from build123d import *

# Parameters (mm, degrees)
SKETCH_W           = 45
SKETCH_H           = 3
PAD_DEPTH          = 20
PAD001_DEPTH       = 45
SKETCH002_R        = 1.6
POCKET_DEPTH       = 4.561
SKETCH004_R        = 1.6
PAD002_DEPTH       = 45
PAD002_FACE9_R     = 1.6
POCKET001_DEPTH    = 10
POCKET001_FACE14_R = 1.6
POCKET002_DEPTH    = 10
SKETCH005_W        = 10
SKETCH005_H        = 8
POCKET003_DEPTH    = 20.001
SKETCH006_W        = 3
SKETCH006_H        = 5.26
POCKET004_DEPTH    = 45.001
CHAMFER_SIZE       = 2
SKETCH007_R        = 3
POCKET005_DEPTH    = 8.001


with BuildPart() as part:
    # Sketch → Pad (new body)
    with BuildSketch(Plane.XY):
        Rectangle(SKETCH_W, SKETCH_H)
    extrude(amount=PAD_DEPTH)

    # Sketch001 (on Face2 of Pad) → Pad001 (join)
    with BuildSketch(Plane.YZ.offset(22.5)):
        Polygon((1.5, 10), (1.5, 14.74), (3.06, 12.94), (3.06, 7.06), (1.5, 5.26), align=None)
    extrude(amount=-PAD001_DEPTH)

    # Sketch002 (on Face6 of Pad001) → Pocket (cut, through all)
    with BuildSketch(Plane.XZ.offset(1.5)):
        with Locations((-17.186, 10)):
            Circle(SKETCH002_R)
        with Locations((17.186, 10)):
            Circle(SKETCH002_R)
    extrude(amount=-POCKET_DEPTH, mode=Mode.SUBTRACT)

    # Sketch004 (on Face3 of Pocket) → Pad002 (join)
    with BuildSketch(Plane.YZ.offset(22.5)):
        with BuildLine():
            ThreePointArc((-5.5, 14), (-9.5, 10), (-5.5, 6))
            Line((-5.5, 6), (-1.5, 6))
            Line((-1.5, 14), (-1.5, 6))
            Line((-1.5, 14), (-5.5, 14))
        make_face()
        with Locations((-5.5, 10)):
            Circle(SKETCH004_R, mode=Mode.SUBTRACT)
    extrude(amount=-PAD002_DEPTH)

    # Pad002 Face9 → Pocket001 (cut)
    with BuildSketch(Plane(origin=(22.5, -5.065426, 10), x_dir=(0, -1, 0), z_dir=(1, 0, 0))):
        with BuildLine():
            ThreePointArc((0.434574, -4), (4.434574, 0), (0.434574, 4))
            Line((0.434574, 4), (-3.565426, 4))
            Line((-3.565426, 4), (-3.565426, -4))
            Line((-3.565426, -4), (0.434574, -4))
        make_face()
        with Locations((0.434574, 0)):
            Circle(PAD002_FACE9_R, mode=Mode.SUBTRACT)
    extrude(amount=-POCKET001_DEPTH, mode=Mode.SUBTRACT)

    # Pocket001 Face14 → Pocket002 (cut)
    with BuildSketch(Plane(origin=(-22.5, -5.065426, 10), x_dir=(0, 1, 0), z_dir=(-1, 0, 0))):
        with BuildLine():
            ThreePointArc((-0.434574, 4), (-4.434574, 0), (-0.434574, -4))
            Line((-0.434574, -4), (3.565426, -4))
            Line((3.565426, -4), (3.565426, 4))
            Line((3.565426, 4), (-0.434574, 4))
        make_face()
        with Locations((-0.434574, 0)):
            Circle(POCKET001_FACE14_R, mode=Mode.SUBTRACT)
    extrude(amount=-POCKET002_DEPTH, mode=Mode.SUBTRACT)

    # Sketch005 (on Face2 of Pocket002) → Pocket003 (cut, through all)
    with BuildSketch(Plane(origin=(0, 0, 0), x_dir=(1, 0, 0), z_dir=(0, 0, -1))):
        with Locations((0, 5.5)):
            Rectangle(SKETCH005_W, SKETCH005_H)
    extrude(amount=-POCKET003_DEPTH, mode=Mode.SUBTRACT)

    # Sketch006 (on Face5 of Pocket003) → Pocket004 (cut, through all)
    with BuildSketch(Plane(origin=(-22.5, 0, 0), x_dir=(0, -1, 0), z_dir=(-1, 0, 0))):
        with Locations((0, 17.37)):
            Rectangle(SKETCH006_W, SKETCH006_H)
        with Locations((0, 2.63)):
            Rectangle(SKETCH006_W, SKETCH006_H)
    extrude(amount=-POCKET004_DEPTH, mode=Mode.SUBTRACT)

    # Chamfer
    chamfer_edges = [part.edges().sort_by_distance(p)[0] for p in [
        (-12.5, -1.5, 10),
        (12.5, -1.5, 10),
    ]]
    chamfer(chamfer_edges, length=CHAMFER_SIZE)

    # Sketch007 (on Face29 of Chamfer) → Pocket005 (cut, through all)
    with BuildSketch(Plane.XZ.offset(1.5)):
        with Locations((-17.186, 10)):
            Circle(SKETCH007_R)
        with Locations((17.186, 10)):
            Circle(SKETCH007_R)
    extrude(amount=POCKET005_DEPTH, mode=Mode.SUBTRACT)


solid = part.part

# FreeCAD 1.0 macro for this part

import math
import FreeCAD as App
import Part
import Sketcher
Q = App.Units.Quantity


def edges_at(feature, points):
    """Names of the edges that pass closest to the given points."""
    edges = feature.Shape.Edges
    near = lambda p: min(range(len(edges)), key=lambda i: edges[i].distToShape(Part.Vertex(*p))[0])
    return sorted({f"Edge{near(p) + 1}" for p in points})

doc = App.newDocument("Part")
params = doc.addObject("Spreadsheet::Sheet", "Params")
for row, (alias, value) in enumerate([
    ("sketch1_width", "45 mm"),
    ("sketch1_height", "3 mm"),
    ("pad1_length", "20 mm"),
    ("sketch2_height", "9.48 mm"),
    ("sketch2_height2", "5.88 mm"),
    ("pad2_length", "45 mm"),
    ("sketch3_diameter", "3.2 mm"),
    ("sketch4_radius", "4 mm"),
    ("sketch4_diameter", "3.2 mm"),
    ("sketch4_width", "4 mm"),
    ("pad3_length", "45 mm"),
    ("sketch5_radius", "4 mm"),
    ("sketch5_diameter", "3.2 mm"),
    ("sketch5_width", "4 mm"),
    ("pocket2_length", "10 mm"),
    ("sketch6_radius", "4 mm"),
    ("sketch6_diameter", "3.2 mm"),
    ("sketch6_width", "4 mm"),
    ("pocket3_length", "10 mm"),
    ("sketch7_width", "10 mm"),
    ("sketch7_height", "8 mm"),
    ("sketch8_width", "3 mm"),
    ("sketch8_height", "5.26 mm"),
    ("chamfer_size", "2 mm"),
    ("sketch9_diameter", "6 mm"),
], start=1):
    params.set(f"A{row}", alias)
    params.set(f"B{row}", "=" + value)
    params.setAlias(f"B{row}", alias)

body = doc.addObject("PartDesign::Body", "Body")

# Sketch on XY plane
sketch1 = doc.addObject("Sketcher::SketchObject", "Sketch")
body.addObject(sketch1)
sketch1.AttachmentSupport = (doc.XY_Plane, [""])
sketch1.MapMode = "FlatFace"
sketch1.addGeometry(Part.LineSegment(App.Vector(-22.5, 1.5, 0), App.Vector(-22.5, -1.5, 0)), False)
sketch1.addGeometry(Part.LineSegment(App.Vector(-22.5, -1.5, 0), App.Vector(22.5, -1.5, 0)), False)
sketch1.addGeometry(Part.LineSegment(App.Vector(22.5, -1.5, 0), App.Vector(22.5, 1.5, 0)), False)
sketch1.addGeometry(Part.LineSegment(App.Vector(22.5, 1.5, 0), App.Vector(-22.5, 1.5, 0)), False)
sketch1.addConstraint(Sketcher.Constraint("Coincident", 0, 2, 1, 1))
sketch1.addConstraint(Sketcher.Constraint("Coincident", 1, 2, 2, 1))
sketch1.addConstraint(Sketcher.Constraint("Coincident", 2, 2, 3, 1))
sketch1.addConstraint(Sketcher.Constraint("Coincident", 3, 2, 0, 1))
sketch1.addConstraint(Sketcher.Constraint("Vertical", 0))
sketch1.addConstraint(Sketcher.Constraint("Horizontal", 1))
sketch1.addConstraint(Sketcher.Constraint("Vertical", 2))
sketch1.addConstraint(Sketcher.Constraint("Horizontal", 3))
sketch1.addConstraint(Sketcher.Constraint("Symmetric", 0, 2, 2, 2, -1, 1))
sketch1.addConstraint(Sketcher.Constraint("DistanceX", 1, 1, 1, 2, Q("45 mm")))
sketch1.addConstraint(Sketcher.Constraint("DistanceY", 0, 2, 0, 1, Q("3 mm")))
sketch1.setExpression("Constraints[9]", "Params.sketch1_width")
sketch1.setExpression("Constraints[10]", "Params.sketch1_height")
pad1 = doc.addObject("PartDesign::Pad", "Pad")
body.addObject(pad1)
pad1.Profile = sketch1
pad1.setExpression("Length", "Params.pad1_length")

# Sketch on YZ plane
sketch2 = doc.addObject("Sketcher::SketchObject", "Sketch001")
body.addObject(sketch2)
sketch2.AttachmentSupport = (doc.YZ_Plane, [""])
sketch2.MapMode = "FlatFace"
sketch2.AttachmentOffset = App.Placement(App.Vector(0, 0, 22.5), App.Rotation())
sketch2.addGeometry(Part.LineSegment(App.Vector(1.5, 14.7, 0), App.Vector(1.5, 5.3, 0)), False)
sketch2.addGeometry(Part.LineSegment(App.Vector(1.5, 5.3, 0), App.Vector(3.1, 7.1, 0)), False)
sketch2.addGeometry(Part.LineSegment(App.Vector(3.1, 7.1, 0), App.Vector(3.1, 12.9, 0)), False)
sketch2.addGeometry(Part.LineSegment(App.Vector(3.1, 12.9, 0), App.Vector(1.5, 14.7, 0)), False)
sketch2.addConstraint(Sketcher.Constraint("Coincident", 0, 2, 1, 1))
sketch2.addConstraint(Sketcher.Constraint("Coincident", 1, 2, 2, 1))
sketch2.addConstraint(Sketcher.Constraint("Coincident", 2, 2, 3, 1))
sketch2.addConstraint(Sketcher.Constraint("Coincident", 3, 2, 0, 1))
sketch2.addConstraint(Sketcher.Constraint("Vertical", 0))
sketch2.addConstraint(Sketcher.Constraint("Vertical", 2))
sketch2.addConstraint(Sketcher.Constraint("Equal", 1, 3))
sketch2.addConstraint(Sketcher.Constraint("DistanceY", 0, 2, 0, 1, Q("9.48 mm")))
sketch2.addConstraint(Sketcher.Constraint("DistanceY", 2, 1, 2, 2, Q("5.88 mm")))
sketch2.addConstraint(Sketcher.Constraint("DistanceX", -1, 1, 0, 2, Q("1.5 mm")))
sketch2.addConstraint(Sketcher.Constraint("DistanceY", -1, 1, 0, 2, Q("5.26 mm")))
sketch2.addConstraint(Sketcher.Constraint("DistanceX", -1, 1, 1, 2, Q("3.06 mm")))
sketch2.setExpression("Constraints[7]", "Params.sketch2_height")
sketch2.setExpression("Constraints[8]", "Params.sketch2_height2")
pad2 = doc.addObject("PartDesign::Pad", "Pad001")
body.addObject(pad2)
pad2.Profile = sketch2
pad2.setExpression("Length", "Params.pad2_length")
pad2.Reversed = True

# Sketch on XZ plane
sketch3 = doc.addObject("Sketcher::SketchObject", "Sketch002")
body.addObject(sketch3)
sketch3.AttachmentSupport = (doc.XZ_Plane, [""])
sketch3.MapMode = "FlatFace"
sketch3.AttachmentOffset = App.Placement(App.Vector(0, 0, 1.5), App.Rotation())
sketch3.addGeometry(Part.Circle(App.Vector(-17.2, 10, 0), App.Vector(0, 0, 1), 1.6), False)
sketch3.addGeometry(Part.Circle(App.Vector(17.2, 10, 0), App.Vector(0, 0, 1), 1.6), False)
sketch3.addConstraint(Sketcher.Constraint("Equal", 0, 1))
sketch3.addConstraint(Sketcher.Constraint("Symmetric", 0, 3, 1, 3, -2))
sketch3.addConstraint(Sketcher.Constraint("Diameter", 0, Q("3.2 mm")))
sketch3.addConstraint(Sketcher.Constraint("DistanceY", -1, 1, 0, 3, Q("10 mm")))
sketch3.addConstraint(Sketcher.Constraint("DistanceX", 0, 3, -1, 1, Q("17.186 mm")))
sketch3.setExpression("Constraints[2]", "Params.sketch3_diameter")
pocket1 = doc.addObject("PartDesign::Pocket", "Pocket")
body.addObject(pocket1)
pocket1.Profile = sketch3
pocket1.Type = "ThroughAll"

# Sketch on YZ plane
sketch4 = doc.addObject("Sketcher::SketchObject", "Sketch003")
body.addObject(sketch4)
sketch4.AttachmentSupport = (doc.YZ_Plane, [""])
sketch4.MapMode = "FlatFace"
sketch4.AttachmentOffset = App.Placement(App.Vector(0, 0, 22.5), App.Rotation())
sketch4.addGeometry(Part.ArcOfCircle(Part.Circle(App.Vector(-5.5, 10, 0), App.Vector(0, 0, 1), 4), math.radians(90), math.radians(270)), False)
sketch4.addGeometry(Part.LineSegment(App.Vector(-5.5, 6, 0), App.Vector(-1.5, 6, 0)), False)
sketch4.addGeometry(Part.LineSegment(App.Vector(-1.5, 6, 0), App.Vector(-1.5, 14, 0)), False)
sketch4.addGeometry(Part.LineSegment(App.Vector(-1.5, 14, 0), App.Vector(-5.5, 14, 0)), False)
sketch4.addGeometry(Part.Circle(App.Vector(-5.5, 10, 0), App.Vector(0, 0, 1), 1.6), False)
sketch4.addConstraint(Sketcher.Constraint("Tangent", 0, 2, 1, 1))
sketch4.addConstraint(Sketcher.Constraint("Coincident", 1, 2, 2, 1))
sketch4.addConstraint(Sketcher.Constraint("Coincident", 2, 2, 3, 1))
sketch4.addConstraint(Sketcher.Constraint("Tangent", 3, 2, 0, 1))
sketch4.addConstraint(Sketcher.Constraint("Horizontal", 1))
sketch4.addConstraint(Sketcher.Constraint("Vertical", 2))
sketch4.addConstraint(Sketcher.Constraint("Horizontal", 3))
sketch4.addConstraint(Sketcher.Constraint("Coincident", 4, 3, 0, 3))
sketch4.addConstraint(Sketcher.Constraint("Radius", 0, Q("4 mm")))
sketch4.addConstraint(Sketcher.Constraint("Diameter", 4, Q("3.2 mm")))
sketch4.addConstraint(Sketcher.Constraint("DistanceX", 1, 1, 1, 2, Q("4 mm")))
sketch4.addConstraint(Sketcher.Constraint("DistanceY", -1, 1, 0, 3, Q("10 mm")))
sketch4.addConstraint(Sketcher.Constraint("DistanceX", 0, 3, -1, 1, Q("5.5 mm")))
sketch4.setExpression("Constraints[8]", "Params.sketch4_radius")
sketch4.setExpression("Constraints[9]", "Params.sketch4_diameter")
sketch4.setExpression("Constraints[10]", "Params.sketch4_width")
pad3 = doc.addObject("PartDesign::Pad", "Pad002")
body.addObject(pad3)
pad3.Profile = sketch4
pad3.setExpression("Length", "Params.pad3_length")
pad3.Reversed = True

# Sketch on YZ plane
sketch5 = doc.addObject("Sketcher::SketchObject", "Sketch004")
body.addObject(sketch5)
sketch5.AttachmentSupport = (doc.YZ_Plane, [""])
sketch5.MapMode = "FlatFace"
sketch5.AttachmentOffset = App.Placement(App.Vector(0, 0, 22.5), App.Rotation())
sketch5.addGeometry(Part.ArcOfCircle(Part.Circle(App.Vector(-5.5, 10, 0), App.Vector(0, 0, 1), 4), math.radians(90), math.radians(270)), False)
sketch5.addGeometry(Part.LineSegment(App.Vector(-5.5, 6, 0), App.Vector(-1.5, 6, 0)), False)
sketch5.addGeometry(Part.LineSegment(App.Vector(-1.5, 6, 0), App.Vector(-1.5, 14, 0)), False)
sketch5.addGeometry(Part.LineSegment(App.Vector(-1.5, 14, 0), App.Vector(-5.5, 14, 0)), False)
sketch5.addGeometry(Part.Circle(App.Vector(-5.5, 10, 0), App.Vector(0, 0, 1), 1.6), False)
sketch5.addConstraint(Sketcher.Constraint("Tangent", 0, 2, 1, 1))
sketch5.addConstraint(Sketcher.Constraint("Coincident", 1, 2, 2, 1))
sketch5.addConstraint(Sketcher.Constraint("Coincident", 2, 2, 3, 1))
sketch5.addConstraint(Sketcher.Constraint("Tangent", 3, 2, 0, 1))
sketch5.addConstraint(Sketcher.Constraint("Horizontal", 1))
sketch5.addConstraint(Sketcher.Constraint("Vertical", 2))
sketch5.addConstraint(Sketcher.Constraint("Horizontal", 3))
sketch5.addConstraint(Sketcher.Constraint("Coincident", 4, 3, 0, 3))
sketch5.addConstraint(Sketcher.Constraint("Radius", 0, Q("4 mm")))
sketch5.addConstraint(Sketcher.Constraint("Diameter", 4, Q("3.2 mm")))
sketch5.addConstraint(Sketcher.Constraint("DistanceX", 1, 1, 1, 2, Q("4 mm")))
sketch5.addConstraint(Sketcher.Constraint("DistanceY", -1, 1, 0, 3, Q("10 mm")))
sketch5.addConstraint(Sketcher.Constraint("DistanceX", 0, 3, -1, 1, Q("5.5 mm")))
sketch5.setExpression("Constraints[8]", "Params.sketch5_radius")
sketch5.setExpression("Constraints[9]", "Params.sketch5_diameter")
sketch5.setExpression("Constraints[10]", "Params.sketch5_width")
pocket2 = doc.addObject("PartDesign::Pocket", "Pocket001")
body.addObject(pocket2)
pocket2.Profile = sketch5
pocket2.setExpression("Length", "Params.pocket2_length")

# Sketch on YZ plane
sketch6 = doc.addObject("Sketcher::SketchObject", "Sketch005")
body.addObject(sketch6)
sketch6.AttachmentSupport = (doc.YZ_Plane, [""])
sketch6.MapMode = "FlatFace"
sketch6.AttachmentOffset = App.Placement(App.Vector(0, 0, -22.5), App.Rotation())
sketch6.addGeometry(Part.ArcOfCircle(Part.Circle(App.Vector(-5.5, 10, 0), App.Vector(0, 0, 1), 4), math.radians(90), math.radians(270)), False)
sketch6.addGeometry(Part.LineSegment(App.Vector(-5.5, 14, 0), App.Vector(-1.5, 14, 0)), False)
sketch6.addGeometry(Part.LineSegment(App.Vector(-1.5, 14, 0), App.Vector(-1.5, 6, 0)), False)
sketch6.addGeometry(Part.LineSegment(App.Vector(-1.5, 6, 0), App.Vector(-5.5, 6, 0)), False)
sketch6.addGeometry(Part.Circle(App.Vector(-5.5, 10, 0), App.Vector(0, 0, 1), 1.6), False)
sketch6.addConstraint(Sketcher.Constraint("Tangent", 0, 1, 1, 1))
sketch6.addConstraint(Sketcher.Constraint("Coincident", 1, 2, 2, 1))
sketch6.addConstraint(Sketcher.Constraint("Coincident", 2, 2, 3, 1))
sketch6.addConstraint(Sketcher.Constraint("Tangent", 3, 2, 0, 2))
sketch6.addConstraint(Sketcher.Constraint("Horizontal", 1))
sketch6.addConstraint(Sketcher.Constraint("Vertical", 2))
sketch6.addConstraint(Sketcher.Constraint("Horizontal", 3))
sketch6.addConstraint(Sketcher.Constraint("Coincident", 4, 3, 0, 3))
sketch6.addConstraint(Sketcher.Constraint("Radius", 0, Q("4 mm")))
sketch6.addConstraint(Sketcher.Constraint("Diameter", 4, Q("3.2 mm")))
sketch6.addConstraint(Sketcher.Constraint("DistanceX", 1, 1, 1, 2, Q("4 mm")))
sketch6.addConstraint(Sketcher.Constraint("DistanceY", -1, 1, 0, 3, Q("10 mm")))
sketch6.addConstraint(Sketcher.Constraint("DistanceX", 0, 3, -1, 1, Q("5.5 mm")))
sketch6.setExpression("Constraints[8]", "Params.sketch6_radius")
sketch6.setExpression("Constraints[9]", "Params.sketch6_diameter")
sketch6.setExpression("Constraints[10]", "Params.sketch6_width")
pocket3 = doc.addObject("PartDesign::Pocket", "Pocket002")
body.addObject(pocket3)
pocket3.Profile = sketch6
pocket3.setExpression("Length", "Params.pocket3_length")
pocket3.Reversed = True

# Sketch on XY plane
sketch7 = doc.addObject("Sketcher::SketchObject", "Sketch006")
body.addObject(sketch7)
sketch7.AttachmentSupport = (doc.XY_Plane, [""])
sketch7.MapMode = "FlatFace"
sketch7.addGeometry(Part.LineSegment(App.Vector(-5, -10, 0), App.Vector(-5, -2, 0)), False)
sketch7.addGeometry(Part.LineSegment(App.Vector(-5, -2, 0), App.Vector(5, -2, 0)), False)
sketch7.addGeometry(Part.LineSegment(App.Vector(5, -2, 0), App.Vector(5, -10, 0)), False)
sketch7.addGeometry(Part.LineSegment(App.Vector(5, -10, 0), App.Vector(-5, -10, 0)), False)
sketch7.addConstraint(Sketcher.Constraint("Coincident", 0, 2, 1, 1))
sketch7.addConstraint(Sketcher.Constraint("Coincident", 1, 2, 2, 1))
sketch7.addConstraint(Sketcher.Constraint("Coincident", 2, 2, 3, 1))
sketch7.addConstraint(Sketcher.Constraint("Coincident", 3, 2, 0, 1))
sketch7.addConstraint(Sketcher.Constraint("Vertical", 0))
sketch7.addConstraint(Sketcher.Constraint("Horizontal", 1))
sketch7.addConstraint(Sketcher.Constraint("Vertical", 2))
sketch7.addConstraint(Sketcher.Constraint("Horizontal", 3))
sketch7.addConstraint(Sketcher.Constraint("DistanceX", 1, 1, 1, 2, Q("10 mm")))
sketch7.addConstraint(Sketcher.Constraint("DistanceY", 0, 1, 0, 2, Q("8 mm")))
sketch7.addConstraint(Sketcher.Constraint("DistanceX", 0, 2, -1, 1, Q("5 mm")))
sketch7.addConstraint(Sketcher.Constraint("DistanceY", 0, 2, -1, 1, Q("1.5 mm")))
sketch7.setExpression("Constraints[8]", "Params.sketch7_width")
sketch7.setExpression("Constraints[9]", "Params.sketch7_height")
pocket4 = doc.addObject("PartDesign::Pocket", "Pocket003")
body.addObject(pocket4)
pocket4.Profile = sketch7
pocket4.Type = "ThroughAll"
pocket4.Reversed = True

# Sketch on YZ plane
sketch8 = doc.addObject("Sketcher::SketchObject", "Sketch007")
body.addObject(sketch8)
sketch8.AttachmentSupport = (doc.YZ_Plane, [""])
sketch8.MapMode = "FlatFace"
sketch8.AttachmentOffset = App.Placement(App.Vector(0, 0, -22.5), App.Rotation())
sketch8.addGeometry(Part.LineSegment(App.Vector(1.5, 20, 0), App.Vector(1.5, 14.7, 0)), False)
sketch8.addGeometry(Part.LineSegment(App.Vector(1.5, 14.7, 0), App.Vector(-1.5, 14.7, 0)), False)
sketch8.addGeometry(Part.LineSegment(App.Vector(-1.5, 14.7, 0), App.Vector(-1.5, 20, 0)), False)
sketch8.addGeometry(Part.LineSegment(App.Vector(-1.5, 20, 0), App.Vector(1.5, 20, 0)), False)
sketch8.addGeometry(Part.LineSegment(App.Vector(1.5, 5.3, 0), App.Vector(1.5, 0, 0)), False)
sketch8.addGeometry(Part.LineSegment(App.Vector(1.5, 0, 0), App.Vector(-1.5, 0, 0)), False)
sketch8.addGeometry(Part.LineSegment(App.Vector(-1.5, 0, 0), App.Vector(-1.5, 5.3, 0)), False)
sketch8.addGeometry(Part.LineSegment(App.Vector(-1.5, 5.3, 0), App.Vector(1.5, 5.3, 0)), False)
sketch8.addConstraint(Sketcher.Constraint("Coincident", 0, 2, 1, 1))
sketch8.addConstraint(Sketcher.Constraint("Coincident", 1, 2, 2, 1))
sketch8.addConstraint(Sketcher.Constraint("Coincident", 2, 2, 3, 1))
sketch8.addConstraint(Sketcher.Constraint("Coincident", 3, 2, 0, 1))
sketch8.addConstraint(Sketcher.Constraint("Coincident", 4, 2, 5, 1))
sketch8.addConstraint(Sketcher.Constraint("Coincident", 5, 2, 6, 1))
sketch8.addConstraint(Sketcher.Constraint("Coincident", 6, 2, 7, 1))
sketch8.addConstraint(Sketcher.Constraint("Coincident", 7, 2, 4, 1))
sketch8.addConstraint(Sketcher.Constraint("Vertical", 0))
sketch8.addConstraint(Sketcher.Constraint("Horizontal", 1))
sketch8.addConstraint(Sketcher.Constraint("Vertical", 2))
sketch8.addConstraint(Sketcher.Constraint("Horizontal", 3))
sketch8.addConstraint(Sketcher.Constraint("Vertical", 4))
sketch8.addConstraint(Sketcher.Constraint("Horizontal", 5))
sketch8.addConstraint(Sketcher.Constraint("Vertical", 6))
sketch8.addConstraint(Sketcher.Constraint("Horizontal", 7))
sketch8.addConstraint(Sketcher.Constraint("Symmetric", 4, 2, 5, 2, -1, 1))
sketch8.addConstraint(Sketcher.Constraint("Vertical", 3, 2, 4, 2))
sketch8.addConstraint(Sketcher.Constraint("Vertical", 2, 2, 5, 2))
sketch8.addConstraint(Sketcher.Constraint("Equal", 2, 4))
sketch8.addConstraint(Sketcher.Constraint("DistanceX", 1, 2, 1, 1, Q("3 mm")))
sketch8.addConstraint(Sketcher.Constraint("DistanceY", -1, 1, 2, 2, Q("20 mm")))
sketch8.addConstraint(Sketcher.Constraint("DistanceY", 0, 2, 0, 1, Q("5.26 mm")))
sketch8.setExpression("Constraints[20]", "Params.sketch8_width")
sketch8.setExpression("Constraints[22]", "Params.sketch8_height")
pocket5 = doc.addObject("PartDesign::Pocket", "Pocket004")
body.addObject(pocket5)
pocket5.Profile = sketch8
pocket5.Type = "ThroughAll"
pocket5.Reversed = True
doc.recompute()

chamfer = doc.addObject("PartDesign::Chamfer", "Chamfer")
body.addObject(chamfer)
chamfer.Base = (pocket5, edges_at(pocket5, [(-12.5, -1.5, 10), (12.5, -1.5, 10)]))
chamfer.setExpression("Size", "Params.chamfer_size")

# Sketch on XZ plane
sketch9 = doc.addObject("Sketcher::SketchObject", "Sketch008")
body.addObject(sketch9)
sketch9.AttachmentSupport = (doc.XZ_Plane, [""])
sketch9.MapMode = "FlatFace"
sketch9.AttachmentOffset = App.Placement(App.Vector(0, 0, 1.5), App.Rotation())
sketch9.addGeometry(Part.Circle(App.Vector(-17.2, 10, 0), App.Vector(0, 0, 1), 3), False)
sketch9.addGeometry(Part.Circle(App.Vector(17.2, 10, 0), App.Vector(0, 0, 1), 3), False)
sketch9.addConstraint(Sketcher.Constraint("Equal", 0, 1))
sketch9.addConstraint(Sketcher.Constraint("Symmetric", 0, 3, 1, 3, -2))
sketch9.addConstraint(Sketcher.Constraint("Diameter", 0, Q("6 mm")))
sketch9.addConstraint(Sketcher.Constraint("DistanceY", -1, 1, 0, 3, Q("10 mm")))
sketch9.addConstraint(Sketcher.Constraint("DistanceX", 0, 3, -1, 1, Q("17.186 mm")))
sketch9.setExpression("Constraints[2]", "Params.sketch9_diameter")
pocket6 = doc.addObject("PartDesign::Pocket", "Pocket005")
body.addObject(pocket6)
pocket6.Profile = sketch9
pocket6.Type = "ThroughAll"
pocket6.Reversed = True

doc.recompute()
